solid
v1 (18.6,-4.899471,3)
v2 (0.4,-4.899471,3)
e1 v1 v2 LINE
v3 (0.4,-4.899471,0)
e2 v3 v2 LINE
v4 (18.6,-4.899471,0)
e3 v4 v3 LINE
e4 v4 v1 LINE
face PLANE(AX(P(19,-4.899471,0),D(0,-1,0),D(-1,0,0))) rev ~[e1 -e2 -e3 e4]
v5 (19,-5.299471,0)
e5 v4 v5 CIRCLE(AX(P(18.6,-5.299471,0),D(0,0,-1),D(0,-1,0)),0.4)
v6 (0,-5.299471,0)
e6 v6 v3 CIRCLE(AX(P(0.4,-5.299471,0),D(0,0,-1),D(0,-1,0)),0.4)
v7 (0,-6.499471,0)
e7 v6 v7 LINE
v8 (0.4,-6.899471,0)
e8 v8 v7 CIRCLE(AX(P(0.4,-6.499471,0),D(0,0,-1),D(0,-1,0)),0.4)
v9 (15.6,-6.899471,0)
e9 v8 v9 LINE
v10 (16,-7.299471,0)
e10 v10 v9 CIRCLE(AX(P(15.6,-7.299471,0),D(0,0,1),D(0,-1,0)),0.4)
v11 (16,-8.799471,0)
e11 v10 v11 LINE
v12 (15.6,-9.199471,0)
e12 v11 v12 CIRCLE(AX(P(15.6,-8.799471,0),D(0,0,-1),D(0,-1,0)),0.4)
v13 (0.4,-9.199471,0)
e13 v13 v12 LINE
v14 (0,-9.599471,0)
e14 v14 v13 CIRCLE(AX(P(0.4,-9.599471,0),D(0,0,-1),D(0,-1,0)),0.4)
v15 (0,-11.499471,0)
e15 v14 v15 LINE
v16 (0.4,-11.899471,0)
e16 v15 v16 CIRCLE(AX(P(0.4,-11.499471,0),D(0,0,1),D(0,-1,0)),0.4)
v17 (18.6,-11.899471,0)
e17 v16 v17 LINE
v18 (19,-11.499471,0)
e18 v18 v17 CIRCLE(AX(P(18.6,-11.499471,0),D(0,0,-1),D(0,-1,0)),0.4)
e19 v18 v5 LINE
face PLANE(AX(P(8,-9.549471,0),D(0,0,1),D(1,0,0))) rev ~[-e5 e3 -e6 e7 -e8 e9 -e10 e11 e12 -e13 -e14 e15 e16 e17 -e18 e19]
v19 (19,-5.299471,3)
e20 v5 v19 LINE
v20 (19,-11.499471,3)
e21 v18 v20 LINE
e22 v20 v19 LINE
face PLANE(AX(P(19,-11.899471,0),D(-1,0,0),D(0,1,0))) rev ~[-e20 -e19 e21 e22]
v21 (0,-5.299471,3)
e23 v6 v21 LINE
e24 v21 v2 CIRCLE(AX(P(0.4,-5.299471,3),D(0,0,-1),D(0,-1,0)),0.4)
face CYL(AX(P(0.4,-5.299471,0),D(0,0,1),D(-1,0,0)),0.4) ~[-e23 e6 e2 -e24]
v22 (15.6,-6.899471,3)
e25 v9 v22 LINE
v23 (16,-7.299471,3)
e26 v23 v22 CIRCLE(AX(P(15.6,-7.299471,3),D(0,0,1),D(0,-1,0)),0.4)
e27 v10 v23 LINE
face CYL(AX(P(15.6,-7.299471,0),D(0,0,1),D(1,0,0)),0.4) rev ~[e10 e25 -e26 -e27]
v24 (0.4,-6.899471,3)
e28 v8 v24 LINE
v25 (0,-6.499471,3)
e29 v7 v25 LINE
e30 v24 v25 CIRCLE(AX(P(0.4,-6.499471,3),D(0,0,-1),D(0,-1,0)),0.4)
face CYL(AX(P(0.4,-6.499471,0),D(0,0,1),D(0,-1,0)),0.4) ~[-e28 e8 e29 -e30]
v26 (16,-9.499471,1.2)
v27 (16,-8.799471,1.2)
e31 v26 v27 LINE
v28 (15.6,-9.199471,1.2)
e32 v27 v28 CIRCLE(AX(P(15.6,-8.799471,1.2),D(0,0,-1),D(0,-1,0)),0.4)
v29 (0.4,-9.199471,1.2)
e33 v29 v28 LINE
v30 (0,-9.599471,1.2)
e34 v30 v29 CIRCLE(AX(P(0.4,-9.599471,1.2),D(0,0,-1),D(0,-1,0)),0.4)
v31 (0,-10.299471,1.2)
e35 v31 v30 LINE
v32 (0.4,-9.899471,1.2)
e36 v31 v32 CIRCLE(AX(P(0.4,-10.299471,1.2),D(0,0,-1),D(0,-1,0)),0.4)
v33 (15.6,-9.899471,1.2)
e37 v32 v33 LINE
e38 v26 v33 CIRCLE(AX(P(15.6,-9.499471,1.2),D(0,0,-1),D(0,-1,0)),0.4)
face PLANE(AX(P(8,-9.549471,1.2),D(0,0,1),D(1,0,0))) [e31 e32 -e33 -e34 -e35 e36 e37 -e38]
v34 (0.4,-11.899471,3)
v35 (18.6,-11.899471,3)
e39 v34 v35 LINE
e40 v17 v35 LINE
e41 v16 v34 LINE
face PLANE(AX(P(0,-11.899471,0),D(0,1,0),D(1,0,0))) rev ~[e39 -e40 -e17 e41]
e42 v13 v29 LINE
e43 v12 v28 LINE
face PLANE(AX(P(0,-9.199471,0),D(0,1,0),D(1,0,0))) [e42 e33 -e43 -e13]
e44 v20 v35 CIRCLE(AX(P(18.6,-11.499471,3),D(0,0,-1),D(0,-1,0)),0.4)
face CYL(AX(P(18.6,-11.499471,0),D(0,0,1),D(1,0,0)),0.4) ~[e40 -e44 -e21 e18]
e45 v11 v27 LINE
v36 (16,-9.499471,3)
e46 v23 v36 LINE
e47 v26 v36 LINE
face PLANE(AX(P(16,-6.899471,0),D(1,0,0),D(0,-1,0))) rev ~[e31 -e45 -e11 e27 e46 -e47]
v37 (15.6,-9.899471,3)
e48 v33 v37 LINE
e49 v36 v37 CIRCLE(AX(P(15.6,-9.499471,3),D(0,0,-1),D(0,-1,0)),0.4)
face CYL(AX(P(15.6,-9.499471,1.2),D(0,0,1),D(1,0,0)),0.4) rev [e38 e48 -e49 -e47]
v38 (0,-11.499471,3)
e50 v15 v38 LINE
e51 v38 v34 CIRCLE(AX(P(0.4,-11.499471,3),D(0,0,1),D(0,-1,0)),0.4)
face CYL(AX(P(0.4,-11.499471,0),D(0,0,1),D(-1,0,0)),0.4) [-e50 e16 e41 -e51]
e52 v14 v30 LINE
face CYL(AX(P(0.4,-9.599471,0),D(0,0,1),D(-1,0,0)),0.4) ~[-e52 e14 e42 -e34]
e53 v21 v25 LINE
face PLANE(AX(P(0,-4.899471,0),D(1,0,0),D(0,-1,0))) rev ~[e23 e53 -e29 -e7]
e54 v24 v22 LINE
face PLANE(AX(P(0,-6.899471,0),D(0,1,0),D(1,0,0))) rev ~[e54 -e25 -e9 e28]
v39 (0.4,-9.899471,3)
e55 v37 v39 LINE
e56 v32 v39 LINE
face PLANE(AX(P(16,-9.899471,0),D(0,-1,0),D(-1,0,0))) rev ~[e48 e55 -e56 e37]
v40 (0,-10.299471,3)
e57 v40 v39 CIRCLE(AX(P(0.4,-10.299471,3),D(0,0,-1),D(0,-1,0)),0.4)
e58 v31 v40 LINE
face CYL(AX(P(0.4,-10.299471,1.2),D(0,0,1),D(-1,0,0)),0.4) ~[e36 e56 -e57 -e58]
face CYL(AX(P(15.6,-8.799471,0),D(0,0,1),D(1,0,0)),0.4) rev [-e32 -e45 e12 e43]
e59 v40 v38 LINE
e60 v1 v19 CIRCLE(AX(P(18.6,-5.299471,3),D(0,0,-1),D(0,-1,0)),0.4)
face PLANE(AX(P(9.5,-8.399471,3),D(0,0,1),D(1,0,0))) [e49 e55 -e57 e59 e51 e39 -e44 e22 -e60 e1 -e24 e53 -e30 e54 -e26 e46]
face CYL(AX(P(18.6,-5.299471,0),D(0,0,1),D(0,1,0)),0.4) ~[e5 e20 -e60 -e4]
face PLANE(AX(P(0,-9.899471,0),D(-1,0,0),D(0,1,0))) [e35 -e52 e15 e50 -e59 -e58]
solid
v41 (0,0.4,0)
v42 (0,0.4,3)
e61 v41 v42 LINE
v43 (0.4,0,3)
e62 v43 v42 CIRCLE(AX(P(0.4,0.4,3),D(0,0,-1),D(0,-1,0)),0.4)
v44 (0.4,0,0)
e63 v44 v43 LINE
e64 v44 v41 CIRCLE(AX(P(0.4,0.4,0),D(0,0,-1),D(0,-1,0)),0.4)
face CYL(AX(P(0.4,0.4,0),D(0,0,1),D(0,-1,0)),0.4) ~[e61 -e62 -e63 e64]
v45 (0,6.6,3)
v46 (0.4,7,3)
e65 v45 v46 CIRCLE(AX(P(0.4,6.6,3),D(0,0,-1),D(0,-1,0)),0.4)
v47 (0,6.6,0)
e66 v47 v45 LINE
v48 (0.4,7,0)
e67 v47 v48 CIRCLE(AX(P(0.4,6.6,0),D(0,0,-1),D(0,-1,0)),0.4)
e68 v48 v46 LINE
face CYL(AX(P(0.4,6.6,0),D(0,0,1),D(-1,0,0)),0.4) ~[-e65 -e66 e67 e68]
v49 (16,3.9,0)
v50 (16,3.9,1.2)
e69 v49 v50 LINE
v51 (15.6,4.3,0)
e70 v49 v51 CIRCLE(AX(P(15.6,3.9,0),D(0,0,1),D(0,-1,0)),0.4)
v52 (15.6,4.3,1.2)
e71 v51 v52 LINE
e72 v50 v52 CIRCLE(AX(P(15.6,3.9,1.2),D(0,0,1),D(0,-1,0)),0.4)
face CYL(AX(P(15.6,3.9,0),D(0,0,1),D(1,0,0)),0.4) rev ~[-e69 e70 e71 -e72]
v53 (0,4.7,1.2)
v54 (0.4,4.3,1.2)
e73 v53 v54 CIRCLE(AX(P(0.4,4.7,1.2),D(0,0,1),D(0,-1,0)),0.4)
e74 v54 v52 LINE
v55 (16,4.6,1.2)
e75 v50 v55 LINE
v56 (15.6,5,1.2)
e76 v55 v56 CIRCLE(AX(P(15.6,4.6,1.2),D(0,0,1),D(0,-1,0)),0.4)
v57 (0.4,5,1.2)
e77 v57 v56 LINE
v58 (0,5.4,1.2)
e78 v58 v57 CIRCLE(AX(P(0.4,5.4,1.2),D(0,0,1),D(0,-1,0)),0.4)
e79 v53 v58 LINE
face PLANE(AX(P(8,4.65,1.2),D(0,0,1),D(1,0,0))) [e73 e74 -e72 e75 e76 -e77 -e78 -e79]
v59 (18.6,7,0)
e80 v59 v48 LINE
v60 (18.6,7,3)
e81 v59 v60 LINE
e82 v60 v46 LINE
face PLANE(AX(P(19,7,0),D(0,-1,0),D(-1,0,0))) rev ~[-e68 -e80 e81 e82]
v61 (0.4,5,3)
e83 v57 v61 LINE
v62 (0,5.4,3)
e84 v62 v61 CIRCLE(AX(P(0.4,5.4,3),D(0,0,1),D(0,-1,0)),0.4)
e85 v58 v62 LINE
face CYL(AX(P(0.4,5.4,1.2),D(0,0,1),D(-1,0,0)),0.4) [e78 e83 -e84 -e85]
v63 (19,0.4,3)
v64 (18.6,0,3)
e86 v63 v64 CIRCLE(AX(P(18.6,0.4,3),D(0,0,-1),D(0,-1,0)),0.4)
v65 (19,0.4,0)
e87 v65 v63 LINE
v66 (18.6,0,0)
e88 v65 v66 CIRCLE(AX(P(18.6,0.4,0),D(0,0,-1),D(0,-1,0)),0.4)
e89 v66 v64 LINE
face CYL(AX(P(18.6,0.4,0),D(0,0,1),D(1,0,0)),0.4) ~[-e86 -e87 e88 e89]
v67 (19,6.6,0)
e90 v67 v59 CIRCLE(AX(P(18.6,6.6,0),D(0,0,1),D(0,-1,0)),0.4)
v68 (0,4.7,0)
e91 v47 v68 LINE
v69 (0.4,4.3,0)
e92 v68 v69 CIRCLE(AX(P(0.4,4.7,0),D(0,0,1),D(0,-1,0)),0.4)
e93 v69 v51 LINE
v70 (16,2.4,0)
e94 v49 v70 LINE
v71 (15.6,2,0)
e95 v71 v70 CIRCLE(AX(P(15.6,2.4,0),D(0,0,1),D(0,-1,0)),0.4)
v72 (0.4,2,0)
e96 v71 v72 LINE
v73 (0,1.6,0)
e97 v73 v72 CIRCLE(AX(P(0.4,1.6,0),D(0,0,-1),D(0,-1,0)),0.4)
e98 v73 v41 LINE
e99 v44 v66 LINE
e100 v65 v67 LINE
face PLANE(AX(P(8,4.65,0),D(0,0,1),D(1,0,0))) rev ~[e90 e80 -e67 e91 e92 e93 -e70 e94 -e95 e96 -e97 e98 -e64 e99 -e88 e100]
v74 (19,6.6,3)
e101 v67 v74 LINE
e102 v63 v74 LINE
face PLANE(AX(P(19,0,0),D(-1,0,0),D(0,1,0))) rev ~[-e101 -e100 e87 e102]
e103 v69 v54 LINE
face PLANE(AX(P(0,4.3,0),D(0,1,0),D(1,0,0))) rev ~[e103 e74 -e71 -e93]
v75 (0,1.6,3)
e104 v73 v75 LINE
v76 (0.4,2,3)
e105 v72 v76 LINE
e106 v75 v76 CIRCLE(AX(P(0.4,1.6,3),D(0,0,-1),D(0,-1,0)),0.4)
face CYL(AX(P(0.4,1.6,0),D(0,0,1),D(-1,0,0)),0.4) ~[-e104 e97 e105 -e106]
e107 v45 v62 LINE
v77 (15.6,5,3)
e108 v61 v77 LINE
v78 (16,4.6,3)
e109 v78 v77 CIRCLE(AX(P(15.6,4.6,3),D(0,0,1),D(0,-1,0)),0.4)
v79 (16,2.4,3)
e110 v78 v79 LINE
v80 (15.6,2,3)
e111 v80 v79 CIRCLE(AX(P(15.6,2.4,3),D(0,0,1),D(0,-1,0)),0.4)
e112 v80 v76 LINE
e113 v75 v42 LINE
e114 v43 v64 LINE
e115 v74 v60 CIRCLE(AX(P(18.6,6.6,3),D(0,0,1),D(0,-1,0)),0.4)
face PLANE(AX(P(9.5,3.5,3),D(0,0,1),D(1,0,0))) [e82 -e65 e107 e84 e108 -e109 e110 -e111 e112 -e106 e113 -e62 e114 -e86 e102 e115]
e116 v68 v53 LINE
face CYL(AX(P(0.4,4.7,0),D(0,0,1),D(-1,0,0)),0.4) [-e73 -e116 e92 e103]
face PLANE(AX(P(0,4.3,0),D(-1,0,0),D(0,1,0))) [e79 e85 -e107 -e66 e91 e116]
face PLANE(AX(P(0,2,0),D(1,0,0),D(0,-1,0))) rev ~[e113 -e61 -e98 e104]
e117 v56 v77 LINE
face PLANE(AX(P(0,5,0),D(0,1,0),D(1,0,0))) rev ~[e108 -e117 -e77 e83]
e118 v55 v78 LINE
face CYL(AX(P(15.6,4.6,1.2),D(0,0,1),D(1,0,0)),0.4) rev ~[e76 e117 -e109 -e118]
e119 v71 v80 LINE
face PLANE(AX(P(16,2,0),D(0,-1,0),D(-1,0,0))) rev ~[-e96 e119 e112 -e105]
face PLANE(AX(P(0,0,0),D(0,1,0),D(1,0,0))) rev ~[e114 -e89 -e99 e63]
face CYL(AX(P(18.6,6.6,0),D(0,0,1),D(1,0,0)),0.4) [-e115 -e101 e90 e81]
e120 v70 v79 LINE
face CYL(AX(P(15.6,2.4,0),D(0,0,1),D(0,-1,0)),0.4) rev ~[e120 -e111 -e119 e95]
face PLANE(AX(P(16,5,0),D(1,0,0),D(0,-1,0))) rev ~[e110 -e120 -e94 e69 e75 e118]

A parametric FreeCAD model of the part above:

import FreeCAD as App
import Part
import Sketcher


def edges_at(feature, points):
    """Names of the edges that pass closest to the given points."""
    edges = feature.Shape.Edges
    near = lambda p: min(range(len(edges)), key=lambda i: edges[i].distToShape(Part.Vertex(*p))[0])
    return sorted({f"Edge{near(p) + 1}" for p in points})

doc = App.newDocument("Part")
body = doc.addObject("PartDesign::Body", "Body")

# Sketch on XY plane
sketch1 = doc.addObject("Sketcher::SketchObject", "Sketch")
body.addObject(sketch1)
sketch1.AttachmentSupport = (doc.XY_Plane, [""])
sketch1.MapMode = "FlatFace"
sketch1.addGeometry([
    Part.LineSegment(App.Vector(0, 2, 0), App.Vector(0, 0, 0)),  # 0
    Part.LineSegment(App.Vector(0, 0, 0), App.Vector(19, 0, 0)),  # 1
    Part.LineSegment(App.Vector(19, 0, 0), App.Vector(19, 7, 0)),  # 2
    Part.LineSegment(App.Vector(19, 7, 0), App.Vector(0, 7, 0)),  # 3
    Part.LineSegment(App.Vector(0, 7, 0), App.Vector(0, 5, 0)),  # 4
    Part.LineSegment(App.Vector(0, 5, 0), App.Vector(16, 5, 0)),  # 5
    Part.LineSegment(App.Vector(16, 5, 0), App.Vector(16, 2, 0)),  # 6
    Part.LineSegment(App.Vector(16, 2, 0), App.Vector(0, 2, 0)),  # 7
], False)
sketch1.addConstraint([
    Sketcher.Constraint("Coincident", 0, 2, 1, 1),
    Sketcher.Constraint("Coincident", 1, 2, 2, 1),
    Sketcher.Constraint("Coincident", 2, 2, 3, 1),
    Sketcher.Constraint("Coincident", 3, 2, 4, 1),
    Sketcher.Constraint("Coincident", 4, 2, 5, 1),
    Sketcher.Constraint("Coincident", 5, 2, 6, 1),
    Sketcher.Constraint("Coincident", 6, 2, 7, 1),
    Sketcher.Constraint("Coincident", 7, 2, 0, 1),
    Sketcher.Constraint("Vertical", 0),
    Sketcher.Constraint("Horizontal", 1),
    Sketcher.Constraint("Vertical", 2),
    Sketcher.Constraint("Horizontal", 3),
    Sketcher.Constraint("Vertical", 4),
    Sketcher.Constraint("Horizontal", 5),
    Sketcher.Constraint("Vertical", 6),
    Sketcher.Constraint("Horizontal", 7),
    Sketcher.Constraint("Coincident", 0, 2, -1, 1),
    Sketcher.Constraint("PointOnObject", 3, 2, -2),
    Sketcher.Constraint("Equal", 0, 4),
    Sketcher.Constraint("DistanceX", 1, 1, 1, 2, 19.0),
    Sketcher.Constraint("DistanceX", 5, 1, 5, 2, 16.0),
    Sketcher.Constraint("DistanceY", 0, 2, 0, 1, 2.0),
    Sketcher.Constraint("DistanceY", 2, 1, 2, 2, 7.0),
])
pad1 = doc.addObject("PartDesign::Pad", "Pad")
body.addObject(pad1)
pad1.Profile = sketch1
pad1.Length = 3
body2 = doc.addObject("PartDesign::Body", "Body001")

# Sketch on XY plane
sketch2 = doc.addObject("Sketcher::SketchObject", "Sketch001")
body2.addObject(sketch2)
sketch2.AttachmentSupport = (doc.getObject("XY_Plane001"), [""])
sketch2.MapMode = "FlatFace"
sketch2.addGeometry([
    Part.LineSegment(App.Vector(16, -9.9, 0), App.Vector(0, -9.9, 0)),  # 0
    Part.LineSegment(App.Vector(0, -9.9, 0), App.Vector(0, -11.9, 0)),  # 1
    Part.LineSegment(App.Vector(0, -11.9, 0), App.Vector(19, -11.9, 0)),  # 2
    Part.LineSegment(App.Vector(19, -11.9, 0), App.Vector(19, -4.9, 0)),  # 3
    Part.LineSegment(App.Vector(19, -4.9, 0), App.Vector(0, -4.9, 0)),  # 4
    Part.LineSegment(App.Vector(0, -4.9, 0), App.Vector(0, -6.9, 0)),  # 5
    Part.LineSegment(App.Vector(0, -6.9, 0), App.Vector(16, -6.9, 0)),  # 6
    Part.LineSegment(App.Vector(16, -6.9, 0), App.Vector(16, -9.9, 0)),  # 7
], False)
sketch2.addConstraint([
    Sketcher.Constraint("Coincident", 0, 2, 1, 1),
    Sketcher.Constraint("Coincident", 1, 2, 2, 1),
    Sketcher.Constraint("Coincident", 2, 2, 3, 1),
    Sketcher.Constraint("Coincident", 3, 2, 4, 1),
    Sketcher.Constraint("Coincident", 4, 2, 5, 1),
    Sketcher.Constraint("Coincident", 5, 2, 6, 1),
    Sketcher.Constraint("Coincident", 6, 2, 7, 1),
    Sketcher.Constraint("Coincident", 7, 2, 0, 1),
    Sketcher.Constraint("Horizontal", 0),
    Sketcher.Constraint("Vertical", 1),
    Sketcher.Constraint("Horizontal", 2),
    Sketcher.Constraint("Vertical", 3),
    Sketcher.Constraint("Horizontal", 4),
    Sketcher.Constraint("Vertical", 5),
    Sketcher.Constraint("Horizontal", 6),
    Sketcher.Constraint("Vertical", 7),
    Sketcher.Constraint("PointOnObject", 0, 2, -2),
    Sketcher.Constraint("PointOnObject", 4, 2, -2),
    Sketcher.Constraint("Equal", 1, 5),
    Sketcher.Constraint("DistanceX", 0, 2, 0, 1, 16.0),
    Sketcher.Constraint("DistanceX", 2, 1, 2, 2, 19.0),
    Sketcher.Constraint("DistanceY", 1, 2, 1, 1, 2.0),
    Sketcher.Constraint("DistanceY", 3, 1, 3, 2, 7.0),
    Sketcher.Constraint("DistanceY", 0, 2, -1, 1, 9.899471),
])
pad2 = doc.addObject("PartDesign::Pad", "Pad001")
body2.addObject(pad2)
pad2.Profile = sketch2
pad2.Length = 3
body.AllowCompound = True
doc.recompute()

boolean = doc.addObject("PartDesign::Boolean", "Boolean")
body.addObject(boolean)
boolean.Type = "Fuse"
boolean.addObjects([body2])

# Sketch on XY plane
sketch3 = doc.addObject("Sketcher::SketchObject", "Sketch002")
body.addObject(sketch3)
sketch3.AttachmentSupport = (doc.XY_Plane, [""])
sketch3.MapMode = "FlatFace"
sketch3.addGeometry([
    Part.LineSegment(App.Vector(0, -9.2, 0), App.Vector(0, -9.9, 0)),  # 0
    Part.LineSegment(App.Vector(0, -9.9, 0), App.Vector(16, -9.9, 0)),  # 1
    Part.LineSegment(App.Vector(16, -9.9, 0), App.Vector(16, -9.2, 0)),  # 2
    Part.LineSegment(App.Vector(16, -9.2, 0), App.Vector(0, -9.2, 0)),  # 3
    Part.LineSegment(App.Vector(0, 5, 0), App.Vector(0, 4.3, 0)),  # 4
    Part.LineSegment(App.Vector(0, 4.3, 0), App.Vector(16, 4.3, 0)),  # 5
    Part.LineSegment(App.Vector(16, 4.3, 0), App.Vector(16, 5, 0)),  # 6
    Part.LineSegment(App.Vector(16, 5, 0), App.Vector(0, 5, 0)),  # 7
], False)
sketch3.addConstraint([
    Sketcher.Constraint("Coincident", 0, 2, 1, 1),
    Sketcher.Constraint("Coincident", 1, 2, 2, 1),
    Sketcher.Constraint("Coincident", 2, 2, 3, 1),
    Sketcher.Constraint("Coincident", 3, 2, 0, 1),
    Sketcher.Constraint("Coincident", 4, 2, 5, 1),
    Sketcher.Constraint("Coincident", 5, 2, 6, 1),
    Sketcher.Constraint("Coincident", 6, 2, 7, 1),
    Sketcher.Constraint("Coincident", 7, 2, 4, 1),
    Sketcher.Constraint("Vertical", 0),
    Sketcher.Constraint("Horizontal", 1),
    Sketcher.Constraint("Vertical", 2),
    Sketcher.Constraint("Horizontal", 3),
    Sketcher.Constraint("Vertical", 4),
    Sketcher.Constraint("Horizontal", 5),
    Sketcher.Constraint("Vertical", 6),
    Sketcher.Constraint("Horizontal", 7),
    Sketcher.Constraint("PointOnObject", 0, 2, -2),
    Sketcher.Constraint("PointOnObject", 4, 2, -2),
    Sketcher.Constraint("Vertical", 2, 2, 5, 2),
    Sketcher.Constraint("Equal", 2, 4),
    Sketcher.Constraint("DistanceX", 1, 1, 1, 2, 16.0),
    Sketcher.Constraint("DistanceY", 0, 2, 0, 1, 0.7),
    Sketcher.Constraint("DistanceY", -1, 1, 6, 2, 5.0),
    Sketcher.Constraint("DistanceY", 0, 2, -1, 1, 9.899471),
])
pad3 = doc.addObject("PartDesign::Pad", "Pad002")
body.addObject(pad3)
pad3.Profile = sketch3
pad3.Length = 1.2
doc.recompute()

fillet = doc.addObject("PartDesign::Fillet", "Fillet")
body.addObject(fillet)
fillet.Base = (pad3, edges_at(pad3, [
    (0, 5, 2.1),
    (0, 7, 1.5),
    (19, 7, 1.5),
    (19, 0, 1.5),
    (0, 0, 1.5),
    (0, 2, 1.5),
    (16, 2, 1.5),
    (16, 5, 2.1),
    (0, 4.3, 0.6),
    (16, 4.3, 0.6),
]))
fillet.Radius = 0.4
doc.recompute()

fillet2 = doc.addObject("PartDesign::Fillet", "Fillet001")
body.addObject(fillet2)
fillet2.Base = (fillet, edges_at(fillet, [
    (19, -4.899, 1.5),
    (19, -11.899, 1.5),
    (0, -11.899, 1.5),
    (0, -9.899, 2.1),
    (16, -9.899, 2.1),
    (16, -6.899, 1.5),
    (0, -6.899, 1.5),
    (0, -4.899, 1.5),
    (0, -9.199, 0.6),
    (16, -9.199, 0.6),
]))
fillet2.Radius = 0.4

doc.recompute()
